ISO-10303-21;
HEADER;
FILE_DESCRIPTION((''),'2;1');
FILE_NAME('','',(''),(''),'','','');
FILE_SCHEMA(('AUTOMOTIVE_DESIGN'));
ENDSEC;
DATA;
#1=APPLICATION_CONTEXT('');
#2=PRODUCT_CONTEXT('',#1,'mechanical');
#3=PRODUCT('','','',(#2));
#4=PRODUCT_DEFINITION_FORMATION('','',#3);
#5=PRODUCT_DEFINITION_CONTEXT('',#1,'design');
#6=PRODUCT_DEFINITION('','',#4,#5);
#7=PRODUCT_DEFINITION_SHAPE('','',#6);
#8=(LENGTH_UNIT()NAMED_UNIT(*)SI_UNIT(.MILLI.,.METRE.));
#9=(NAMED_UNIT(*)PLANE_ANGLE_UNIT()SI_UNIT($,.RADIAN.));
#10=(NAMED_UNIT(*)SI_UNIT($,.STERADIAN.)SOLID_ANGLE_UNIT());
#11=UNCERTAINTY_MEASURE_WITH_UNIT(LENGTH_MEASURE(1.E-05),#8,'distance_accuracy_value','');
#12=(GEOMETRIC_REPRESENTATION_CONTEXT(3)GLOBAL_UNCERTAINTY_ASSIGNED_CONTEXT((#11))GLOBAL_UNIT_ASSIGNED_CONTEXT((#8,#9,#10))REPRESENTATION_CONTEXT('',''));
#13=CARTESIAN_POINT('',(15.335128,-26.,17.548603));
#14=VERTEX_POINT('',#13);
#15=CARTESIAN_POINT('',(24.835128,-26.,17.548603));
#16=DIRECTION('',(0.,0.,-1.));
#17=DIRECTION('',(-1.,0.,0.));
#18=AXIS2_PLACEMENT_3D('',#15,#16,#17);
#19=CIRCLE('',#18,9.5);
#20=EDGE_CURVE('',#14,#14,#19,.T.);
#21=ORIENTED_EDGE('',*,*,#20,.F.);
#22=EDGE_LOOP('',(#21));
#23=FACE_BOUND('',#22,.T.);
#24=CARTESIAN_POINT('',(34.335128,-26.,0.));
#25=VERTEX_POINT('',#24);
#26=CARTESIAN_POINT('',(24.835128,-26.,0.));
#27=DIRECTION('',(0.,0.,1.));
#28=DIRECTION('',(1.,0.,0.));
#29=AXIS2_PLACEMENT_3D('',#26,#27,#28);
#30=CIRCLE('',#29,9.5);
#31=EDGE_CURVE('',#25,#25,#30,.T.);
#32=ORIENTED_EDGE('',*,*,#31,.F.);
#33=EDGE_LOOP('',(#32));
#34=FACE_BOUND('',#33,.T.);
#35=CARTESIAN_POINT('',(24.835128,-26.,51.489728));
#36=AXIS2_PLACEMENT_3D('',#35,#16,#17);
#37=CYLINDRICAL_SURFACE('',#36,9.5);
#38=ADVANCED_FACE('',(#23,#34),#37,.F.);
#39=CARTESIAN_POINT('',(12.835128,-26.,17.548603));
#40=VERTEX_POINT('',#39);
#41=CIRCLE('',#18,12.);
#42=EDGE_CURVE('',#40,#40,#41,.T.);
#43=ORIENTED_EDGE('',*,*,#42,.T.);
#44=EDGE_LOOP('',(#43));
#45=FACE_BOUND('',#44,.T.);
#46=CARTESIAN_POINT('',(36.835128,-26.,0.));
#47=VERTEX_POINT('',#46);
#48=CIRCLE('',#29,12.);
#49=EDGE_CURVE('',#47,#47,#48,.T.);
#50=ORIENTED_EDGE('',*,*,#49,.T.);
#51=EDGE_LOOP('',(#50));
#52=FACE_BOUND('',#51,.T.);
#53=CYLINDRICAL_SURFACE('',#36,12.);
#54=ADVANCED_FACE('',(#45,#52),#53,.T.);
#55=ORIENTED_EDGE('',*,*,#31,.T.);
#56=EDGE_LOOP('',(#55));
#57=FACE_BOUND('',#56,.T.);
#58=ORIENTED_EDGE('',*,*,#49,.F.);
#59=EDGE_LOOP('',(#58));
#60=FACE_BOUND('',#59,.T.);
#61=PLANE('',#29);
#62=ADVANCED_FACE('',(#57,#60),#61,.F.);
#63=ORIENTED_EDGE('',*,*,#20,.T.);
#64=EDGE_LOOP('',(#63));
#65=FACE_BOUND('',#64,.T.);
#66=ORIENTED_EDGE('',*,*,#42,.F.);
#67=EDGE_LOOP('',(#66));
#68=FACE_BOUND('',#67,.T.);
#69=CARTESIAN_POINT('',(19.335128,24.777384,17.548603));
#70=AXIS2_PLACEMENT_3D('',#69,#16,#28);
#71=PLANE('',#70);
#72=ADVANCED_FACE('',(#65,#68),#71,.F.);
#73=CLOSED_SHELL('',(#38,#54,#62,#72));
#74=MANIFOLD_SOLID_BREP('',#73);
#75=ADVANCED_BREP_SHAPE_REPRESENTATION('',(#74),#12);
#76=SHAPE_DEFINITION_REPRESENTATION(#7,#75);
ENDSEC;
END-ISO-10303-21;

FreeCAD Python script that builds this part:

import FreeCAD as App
import Part
import Sketcher

V = App.Vector

doc = App.newDocument("Part")
body = doc.addObject("PartDesign::Body", "Body")

# Sketch on XY plane
sketch1 = body.newObject("Sketcher::SketchObject", "Sketch")
sketch1.AttachmentSupport = (doc.getObject("XY_Plane"), [""])
sketch1.MapMode = "FlatFace"
sketch1.addGeometry([
    Part.Circle(V(25, -26, 0), V(0, 0, 1), 12),
    Part.Circle(V(25, -26, 0), V(0, 0, 1), 10),
], False)
sketch1.addConstraint([
    Sketcher.Constraint("Coincident", 1, 3, 0, 3),
    Sketcher.Constraint("Diameter", 0, 24.0),
    Sketcher.Constraint("Diameter", 1, 19.0),
    Sketcher.Constraint("DistanceY", 0, 3, -1, 1, 26.0),
    Sketcher.Constraint("DistanceX", -1, 1, 0, 3, 24.835128),
])
pad1 = body.newObject("PartDesign::Pad", "Pad")
pad1.Profile = sketch1
pad1.Length = 17.548603

doc.recompute()
